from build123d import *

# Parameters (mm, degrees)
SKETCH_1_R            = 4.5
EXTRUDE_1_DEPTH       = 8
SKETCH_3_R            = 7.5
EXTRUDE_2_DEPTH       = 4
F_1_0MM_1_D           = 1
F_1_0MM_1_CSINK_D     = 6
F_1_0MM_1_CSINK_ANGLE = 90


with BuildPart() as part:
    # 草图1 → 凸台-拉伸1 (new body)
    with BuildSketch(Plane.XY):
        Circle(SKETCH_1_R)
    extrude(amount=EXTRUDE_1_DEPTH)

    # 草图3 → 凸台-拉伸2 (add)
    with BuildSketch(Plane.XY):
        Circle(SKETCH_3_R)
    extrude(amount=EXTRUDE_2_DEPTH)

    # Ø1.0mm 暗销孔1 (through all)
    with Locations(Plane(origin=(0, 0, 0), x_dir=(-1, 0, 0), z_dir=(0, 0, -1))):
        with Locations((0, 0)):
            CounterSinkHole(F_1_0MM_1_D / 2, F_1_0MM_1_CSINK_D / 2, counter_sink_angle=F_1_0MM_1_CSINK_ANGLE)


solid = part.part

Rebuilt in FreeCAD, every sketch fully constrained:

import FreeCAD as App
import Part
import Sketcher
from FreeCAD import Vector
Q = App.Units.Quantity

doc = App.newDocument("Part")
body = doc.addObject("PartDesign::Body", "Body")

# Sketch on XY plane
sketch1 = body.newObject("Sketcher::SketchObject", "Sketch")
sketch1.AttachmentSupport = (doc.getObject("XY_Plane"), [""])
sketch1.MapMode = "FlatFace"
sketch1.addGeometry(Part.Circle(Vector(0, 0, 0), Vector(0, 0, 1), 4.5), False)
sketch1.addConstraint(Sketcher.Constraint("Coincident", 0, 3, -1, 1))
sketch1.addConstraint(Sketcher.Constraint("Diameter", 0, Q("9 mm")))
pad1 = body.newObject("PartDesign::Pad", "Pad")
pad1.Profile = sketch1
pad1.Length = 8

# Sketch on XY plane
sketch2 = body.newObject("Sketcher::SketchObject", "Sketch001")
sketch2.AttachmentSupport = (doc.getObject("XY_Plane"), [""])
sketch2.MapMode = "FlatFace"
sketch2.addGeometry(Part.Circle(Vector(0, 0, 0), Vector(0, 0, 1), 8), False)
sketch2.addConstraint(Sketcher.Constraint("Coincident", 0, 3, -1, 1))
sketch2.addConstraint(Sketcher.Constraint("Diameter", 0, Q("15 mm")))
pad2 = body.newObject("PartDesign::Pad", "Pad001")
pad2.Profile = sketch2
pad2.Length = 4

# Sketch on XY plane
sketch3 = body.newObject("Sketcher::SketchObject", "Sketch002")
sketch3.AttachmentSupport = (doc.getObject("XY_Plane"), [""])
sketch3.MapMode = "FlatFace"
sketch3.addGeometry(Part.Circle(Vector(0, 0, 0), Vector(0, 0, 1), 0.5), False)
sketch3.addConstraint(Sketcher.Constraint("Coincident", 0, 3, -1, 1))
sketch3.addConstraint(Sketcher.Constraint("Diameter", 0, Q("1 mm")))
doc.recompute()
hole = body.newObject("PartDesign::Hole", "Hole")
hole.Profile = sketch3
hole.ThreadType = "None"
hole.Diameter = 1
hole.DepthType = "ThroughAll"
hole.HoleCutType = "Countersink"
hole.HoleCutDiameter = 6
hole.HoleCutCountersinkAngle = 90
hole.Reversed = True

doc.recompute()
